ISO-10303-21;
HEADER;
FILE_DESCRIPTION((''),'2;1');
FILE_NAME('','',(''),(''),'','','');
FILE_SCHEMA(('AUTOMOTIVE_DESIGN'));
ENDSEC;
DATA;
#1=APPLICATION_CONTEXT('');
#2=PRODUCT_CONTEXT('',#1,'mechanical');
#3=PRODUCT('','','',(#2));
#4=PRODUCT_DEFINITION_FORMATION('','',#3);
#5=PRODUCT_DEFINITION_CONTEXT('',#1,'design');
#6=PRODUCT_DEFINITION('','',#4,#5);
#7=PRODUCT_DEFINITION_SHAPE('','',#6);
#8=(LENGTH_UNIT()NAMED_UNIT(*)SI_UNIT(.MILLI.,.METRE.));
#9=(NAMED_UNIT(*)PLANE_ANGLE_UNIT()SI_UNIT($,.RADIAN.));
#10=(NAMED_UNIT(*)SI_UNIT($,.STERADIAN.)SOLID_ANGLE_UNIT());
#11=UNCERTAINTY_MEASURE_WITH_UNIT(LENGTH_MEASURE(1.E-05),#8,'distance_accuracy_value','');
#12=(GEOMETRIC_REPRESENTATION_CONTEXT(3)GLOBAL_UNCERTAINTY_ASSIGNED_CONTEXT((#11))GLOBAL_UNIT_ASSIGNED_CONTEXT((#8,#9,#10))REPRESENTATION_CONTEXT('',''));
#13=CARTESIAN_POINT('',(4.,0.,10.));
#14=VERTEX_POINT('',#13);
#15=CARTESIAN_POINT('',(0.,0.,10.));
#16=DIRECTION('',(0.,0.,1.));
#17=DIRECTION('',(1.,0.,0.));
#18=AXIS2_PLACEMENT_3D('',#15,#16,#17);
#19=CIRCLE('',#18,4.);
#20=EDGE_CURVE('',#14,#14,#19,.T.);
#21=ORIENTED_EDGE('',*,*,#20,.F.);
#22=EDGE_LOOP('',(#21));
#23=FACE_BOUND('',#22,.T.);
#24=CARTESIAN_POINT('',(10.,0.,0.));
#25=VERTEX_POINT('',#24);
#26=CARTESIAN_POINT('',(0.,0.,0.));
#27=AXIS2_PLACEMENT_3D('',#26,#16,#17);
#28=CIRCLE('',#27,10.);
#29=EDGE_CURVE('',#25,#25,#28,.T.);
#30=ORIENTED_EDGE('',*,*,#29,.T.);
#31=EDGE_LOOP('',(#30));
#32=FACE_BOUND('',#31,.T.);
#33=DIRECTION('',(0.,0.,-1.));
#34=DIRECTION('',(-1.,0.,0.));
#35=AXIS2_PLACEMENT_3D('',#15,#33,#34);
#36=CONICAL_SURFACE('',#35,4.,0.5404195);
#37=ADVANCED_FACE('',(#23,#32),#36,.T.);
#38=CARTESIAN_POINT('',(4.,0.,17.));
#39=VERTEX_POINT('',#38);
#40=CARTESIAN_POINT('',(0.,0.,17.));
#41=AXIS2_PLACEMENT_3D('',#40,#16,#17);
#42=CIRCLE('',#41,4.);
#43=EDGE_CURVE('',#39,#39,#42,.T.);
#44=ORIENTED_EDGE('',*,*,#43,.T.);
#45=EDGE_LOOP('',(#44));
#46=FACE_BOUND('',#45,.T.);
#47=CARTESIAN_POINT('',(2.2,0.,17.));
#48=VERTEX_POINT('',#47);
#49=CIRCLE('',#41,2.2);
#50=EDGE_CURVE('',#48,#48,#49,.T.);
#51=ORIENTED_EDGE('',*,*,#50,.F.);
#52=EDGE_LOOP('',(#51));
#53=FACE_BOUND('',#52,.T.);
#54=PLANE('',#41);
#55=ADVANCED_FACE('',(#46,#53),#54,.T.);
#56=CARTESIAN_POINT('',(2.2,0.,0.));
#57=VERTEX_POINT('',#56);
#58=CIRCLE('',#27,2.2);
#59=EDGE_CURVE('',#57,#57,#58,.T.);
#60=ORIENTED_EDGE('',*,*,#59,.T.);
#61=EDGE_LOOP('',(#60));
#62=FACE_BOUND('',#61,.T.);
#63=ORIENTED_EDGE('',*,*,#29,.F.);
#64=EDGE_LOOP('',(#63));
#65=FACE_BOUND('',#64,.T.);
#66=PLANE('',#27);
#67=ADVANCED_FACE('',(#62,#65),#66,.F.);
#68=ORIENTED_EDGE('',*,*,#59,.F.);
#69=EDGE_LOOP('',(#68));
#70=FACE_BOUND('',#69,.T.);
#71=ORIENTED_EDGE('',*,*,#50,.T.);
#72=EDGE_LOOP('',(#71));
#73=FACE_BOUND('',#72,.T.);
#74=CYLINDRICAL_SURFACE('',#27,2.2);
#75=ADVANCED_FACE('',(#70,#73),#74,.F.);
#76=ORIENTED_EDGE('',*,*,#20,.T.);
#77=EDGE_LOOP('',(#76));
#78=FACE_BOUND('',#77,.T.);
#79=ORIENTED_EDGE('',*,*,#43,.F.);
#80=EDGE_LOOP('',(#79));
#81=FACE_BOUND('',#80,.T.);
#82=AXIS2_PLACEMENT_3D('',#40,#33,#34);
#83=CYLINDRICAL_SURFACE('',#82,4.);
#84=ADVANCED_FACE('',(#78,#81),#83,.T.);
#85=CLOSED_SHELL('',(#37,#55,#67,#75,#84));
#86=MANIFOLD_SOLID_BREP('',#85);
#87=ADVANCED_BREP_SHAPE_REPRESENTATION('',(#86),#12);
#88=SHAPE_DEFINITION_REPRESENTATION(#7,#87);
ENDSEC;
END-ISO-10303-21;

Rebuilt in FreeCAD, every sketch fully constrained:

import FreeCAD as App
import Part
import Sketcher

V = App.Vector

doc = App.newDocument("Part")
params = doc.addObject("Spreadsheet::Sheet", "Params")
for row, (alias, value) in enumerate([
    ("sketch1_diameter", "20 mm"),
    ("pad1_length", "10 mm"),
    ("sketch2_width", "6 mm"),
    ("sketch2_height", "10 mm"),
    ("groove_angle", "360 deg"),
    ("sketch3_diameter", "8 mm"),
    ("pad2_length", "7 mm"),
    ("sketch4_diameter", "4.4 mm"),
], start=1):
    params.set(f"A{row}", alias)
    params.set(f"B{row}", "=" + value)
    params.setAlias(f"B{row}", alias)

body = doc.addObject("PartDesign::Body", "Body")

sketch1 = body.newObject("Sketcher::SketchObject", "Sketch")
sketch1.AttachmentSupport = (doc.getObject("XY_Plane"), [""])
sketch1.MapMode = "FlatFace"
sketch1.addGeometry(Part.Circle(V(0, 0, 0), V(0, 0, 1), 10), False)
sketch1.addConstraint([
    Sketcher.Constraint("Coincident", 0, 3, -1, 1),
    Sketcher.Constraint("Diameter", 0, 20.0),
])
sketch1.setExpression("Constraints[1]", "Params.sketch1_diameter")
pad1 = body.newObject("PartDesign::Pad", "Pad")
pad1.Profile = sketch1
pad1.setExpression("Length", "Params.pad1_length")

sketch2 = body.newObject("Sketcher::SketchObject", "Sketch001")
sketch2.AttachmentSupport = (doc.getObject("YZ_Plane"), [""])
sketch2.MapMode = "FlatFace"
sketch2.addGeometry([
    Part.LineSegment(V(-10, 0, 0), V(-4, 10, 0)),
    Part.LineSegment(V(-4, 10, 0), V(-10, 10, 0)),
    Part.LineSegment(V(-10, 10, 0), V(-10, 0, 0)),
], False)
sketch2.addConstraint([
    Sketcher.Constraint("Coincident", 0, 2, 1, 1),
    Sketcher.Constraint("Coincident", 1, 2, 2, 1),
    Sketcher.Constraint("Coincident", 2, 2, 0, 1),
    Sketcher.Constraint("Horizontal", 1),
    Sketcher.Constraint("Vertical", 2),
    Sketcher.Constraint("PointOnObject", 2, 2, -1),
    Sketcher.Constraint("DistanceX", 1, 2, 1, 1, 6.0),
    Sketcher.Constraint("DistanceY", 2, 2, 2, 1, 10.0),
    Sketcher.Constraint("DistanceX", 0, 2, -1, 1, 4.0),
])
sketch2.setExpression("Constraints[6]", "Params.sketch2_width")
sketch2.setExpression("Constraints[7]", "Params.sketch2_height")
groove = body.newObject("PartDesign::Groove", "Groove")
groove.Profile = sketch2
groove.ReferenceAxis = (sketch2, ["V_Axis"])
groove.setExpression("Angle", "Params.groove_angle")

sketch3 = body.newObject("Sketcher::SketchObject", "Sketch002")
sketch3.AttachmentSupport = (doc.getObject("XY_Plane"), [""])
sketch3.MapMode = "FlatFace"
sketch3.AttachmentOffset = App.Placement(V(0, 0, 10), App.Rotation())
sketch3.addGeometry(Part.Circle(V(0, 0, 0), V(0, 0, 1), 4), False)
sketch3.addConstraint([
    Sketcher.Constraint("Coincident", 0, 3, -1, 1),
    Sketcher.Constraint("Diameter", 0, 8.0),
])
sketch3.setExpression("Constraints[1]", "Params.sketch3_diameter")
pad2 = body.newObject("PartDesign::Pad", "Pad001")
pad2.Profile = sketch3
pad2.setExpression("Length", "Params.pad2_length")

sketch4 = body.newObject("Sketcher::SketchObject", "Sketch003")
sketch4.AttachmentSupport = (doc.getObject("XY_Plane"), [""])
sketch4.MapMode = "FlatFace"
sketch4.AttachmentOffset = App.Placement(V(0, 0, 17), App.Rotation())
sketch4.addGeometry(Part.Circle(V(0, 0, 0), V(0, 0, 1), 2.2), False)
sketch4.addConstraint([
    Sketcher.Constraint("Coincident", 0, 3, -1, 1),
    Sketcher.Constraint("Diameter", 0, 4.4),
])
sketch4.setExpression("Constraints[1]", "Params.sketch4_diameter")
pocket1 = body.newObject("PartDesign::Pocket", "Pocket")
pocket1.Profile = sketch4
pocket1.Type = "ThroughAll"

doc.recompute()
